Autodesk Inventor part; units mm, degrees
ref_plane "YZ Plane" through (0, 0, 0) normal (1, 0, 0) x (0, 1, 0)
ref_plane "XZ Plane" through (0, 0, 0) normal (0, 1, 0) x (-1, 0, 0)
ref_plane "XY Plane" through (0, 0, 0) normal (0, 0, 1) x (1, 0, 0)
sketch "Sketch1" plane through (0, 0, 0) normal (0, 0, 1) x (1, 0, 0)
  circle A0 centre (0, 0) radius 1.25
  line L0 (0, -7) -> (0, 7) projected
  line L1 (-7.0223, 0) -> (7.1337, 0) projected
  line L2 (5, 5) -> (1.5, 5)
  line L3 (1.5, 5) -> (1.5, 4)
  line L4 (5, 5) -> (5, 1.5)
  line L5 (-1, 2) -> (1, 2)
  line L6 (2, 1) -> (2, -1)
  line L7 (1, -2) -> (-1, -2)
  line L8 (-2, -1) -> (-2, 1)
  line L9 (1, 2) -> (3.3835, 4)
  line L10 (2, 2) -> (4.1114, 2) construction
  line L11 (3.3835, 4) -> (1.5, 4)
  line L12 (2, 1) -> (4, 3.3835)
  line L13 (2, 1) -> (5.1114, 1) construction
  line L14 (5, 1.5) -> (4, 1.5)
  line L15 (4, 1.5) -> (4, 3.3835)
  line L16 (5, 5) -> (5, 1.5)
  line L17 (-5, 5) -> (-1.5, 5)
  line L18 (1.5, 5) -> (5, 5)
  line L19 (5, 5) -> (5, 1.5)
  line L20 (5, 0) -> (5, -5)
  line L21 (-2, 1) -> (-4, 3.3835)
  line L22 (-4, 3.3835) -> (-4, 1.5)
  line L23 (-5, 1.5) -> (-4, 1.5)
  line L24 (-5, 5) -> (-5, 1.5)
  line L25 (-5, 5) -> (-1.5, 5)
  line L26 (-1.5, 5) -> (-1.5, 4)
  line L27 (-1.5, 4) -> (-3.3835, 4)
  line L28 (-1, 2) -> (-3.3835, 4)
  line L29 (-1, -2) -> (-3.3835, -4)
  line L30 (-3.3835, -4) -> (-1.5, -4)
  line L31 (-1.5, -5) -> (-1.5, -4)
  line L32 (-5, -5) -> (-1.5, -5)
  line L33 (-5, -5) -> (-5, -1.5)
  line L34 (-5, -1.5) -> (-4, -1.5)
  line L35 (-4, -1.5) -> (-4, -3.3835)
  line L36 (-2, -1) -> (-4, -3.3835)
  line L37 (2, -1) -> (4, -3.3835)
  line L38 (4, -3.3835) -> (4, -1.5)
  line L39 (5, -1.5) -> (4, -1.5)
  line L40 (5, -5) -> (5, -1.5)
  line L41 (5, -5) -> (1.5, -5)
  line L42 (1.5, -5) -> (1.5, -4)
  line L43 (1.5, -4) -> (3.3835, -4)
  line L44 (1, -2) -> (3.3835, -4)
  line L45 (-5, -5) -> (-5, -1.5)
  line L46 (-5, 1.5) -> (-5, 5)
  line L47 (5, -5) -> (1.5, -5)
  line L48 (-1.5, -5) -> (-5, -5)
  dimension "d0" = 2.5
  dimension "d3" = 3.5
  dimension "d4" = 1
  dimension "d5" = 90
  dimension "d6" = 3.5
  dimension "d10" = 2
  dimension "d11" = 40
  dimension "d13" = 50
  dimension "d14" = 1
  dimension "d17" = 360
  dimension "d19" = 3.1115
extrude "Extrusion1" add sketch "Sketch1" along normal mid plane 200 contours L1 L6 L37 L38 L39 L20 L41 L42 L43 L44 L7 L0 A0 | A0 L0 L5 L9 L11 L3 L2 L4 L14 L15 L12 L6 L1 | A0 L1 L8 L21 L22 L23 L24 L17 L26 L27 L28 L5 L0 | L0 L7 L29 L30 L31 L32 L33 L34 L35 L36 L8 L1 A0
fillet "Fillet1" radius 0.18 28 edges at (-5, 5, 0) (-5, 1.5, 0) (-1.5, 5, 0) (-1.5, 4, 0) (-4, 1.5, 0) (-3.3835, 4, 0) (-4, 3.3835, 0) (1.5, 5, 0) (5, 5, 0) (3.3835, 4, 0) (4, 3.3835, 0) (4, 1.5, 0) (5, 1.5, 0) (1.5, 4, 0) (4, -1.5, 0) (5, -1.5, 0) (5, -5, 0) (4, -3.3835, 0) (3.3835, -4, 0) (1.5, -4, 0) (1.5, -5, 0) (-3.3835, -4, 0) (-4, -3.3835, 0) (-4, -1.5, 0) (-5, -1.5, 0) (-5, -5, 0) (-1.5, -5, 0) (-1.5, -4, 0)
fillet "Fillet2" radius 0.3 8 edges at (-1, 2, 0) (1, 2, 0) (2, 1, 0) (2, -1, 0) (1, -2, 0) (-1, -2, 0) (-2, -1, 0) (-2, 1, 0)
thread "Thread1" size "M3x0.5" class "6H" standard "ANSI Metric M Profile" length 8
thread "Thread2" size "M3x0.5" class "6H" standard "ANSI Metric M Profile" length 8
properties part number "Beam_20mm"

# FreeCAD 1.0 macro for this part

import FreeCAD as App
import Part
import Sketcher
Q = App.Units.Quantity


def edges_at(feature, points):
    """Names of the edges that pass closest to the given points."""
    edges = feature.Shape.Edges
    near = lambda p: min(range(len(edges)), key=lambda i: edges[i].distToShape(Part.Vertex(*p))[0])
    return sorted({f"Edge{near(p) + 1}" for p in points})

doc = App.newDocument("Part")
body = doc.addObject("PartDesign::Body", "Body")

sketch1 = body.newObject("Sketcher::SketchObject", "Sketch")
sketch1.AttachmentSupport = (doc.getObject("XY_Plane"), [""])
sketch1.MapMode = "FlatFace"
sketch1.addGeometry([
    Part.LineSegment(App.Vector(2, -1, 0), App.Vector(2, 1, 0)),
    Part.LineSegment(App.Vector(2, 1, 0), App.Vector(4, 3.3835, 0)),
    Part.LineSegment(App.Vector(4, 3.3835, 0), App.Vector(4, 1.5, 0)),
    Part.LineSegment(App.Vector(4, 1.5, 0), App.Vector(5, 1.5, 0)),
    Part.LineSegment(App.Vector(5, 1.5, 0), App.Vector(5, 5, 0)),
    Part.LineSegment(App.Vector(5, 5, 0), App.Vector(1.5, 5, 0)),
    Part.LineSegment(App.Vector(1.5, 5, 0), App.Vector(1.5, 4, 0)),
    Part.LineSegment(App.Vector(1.5, 4, 0), App.Vector(3.3835, 4, 0)),
    Part.LineSegment(App.Vector(3.3835, 4, 0), App.Vector(1, 2, 0)),
    Part.LineSegment(App.Vector(1, 2, 0), App.Vector(-1, 2, 0)),
    Part.LineSegment(App.Vector(-1, 2, 0), App.Vector(-3.3835, 4, 0)),
    Part.LineSegment(App.Vector(-3.3835, 4, 0), App.Vector(-1.5, 4, 0)),
    Part.LineSegment(App.Vector(-1.5, 4, 0), App.Vector(-1.5, 5, 0)),
    Part.LineSegment(App.Vector(-1.5, 5, 0), App.Vector(-5, 5, 0)),
    Part.LineSegment(App.Vector(-5, 5, 0), App.Vector(-5, 1.5, 0)),
    Part.LineSegment(App.Vector(-5, 1.5, 0), App.Vector(-4, 1.5, 0)),
    Part.LineSegment(App.Vector(-4, 1.5, 0), App.Vector(-4, 3.3835, 0)),
    Part.LineSegment(App.Vector(-4, 3.3835, 0), App.Vector(-2, 1, 0)),
    Part.LineSegment(App.Vector(-2, 1, 0), App.Vector(-2, -1, 0)),
    Part.LineSegment(App.Vector(-2, -1, 0), App.Vector(-4, -3.3835, 0)),
    Part.LineSegment(App.Vector(-4, -3.3835, 0), App.Vector(-4, -1.5, 0)),
    Part.LineSegment(App.Vector(-4, -1.5, 0), App.Vector(-5, -1.5, 0)),
    Part.LineSegment(App.Vector(-5, -1.5, 0), App.Vector(-5, -5, 0)),
    Part.LineSegment(App.Vector(-5, -5, 0), App.Vector(-1.5, -5, 0)),
    Part.LineSegment(App.Vector(-1.5, -5, 0), App.Vector(-1.5, -4, 0)),
    Part.LineSegment(App.Vector(-1.5, -4, 0), App.Vector(-3.3835, -4, 0)),
    Part.LineSegment(App.Vector(-3.3835, -4, 0), App.Vector(-1, -2, 0)),
    Part.LineSegment(App.Vector(-1, -2, 0), App.Vector(1, -2, 0)),
    Part.LineSegment(App.Vector(1, -2, 0), App.Vector(3.3835, -4, 0)),
    Part.LineSegment(App.Vector(3.3835, -4, 0), App.Vector(1.5, -4, 0)),
    Part.LineSegment(App.Vector(1.5, -4, 0), App.Vector(1.5, -5, 0)),
    Part.LineSegment(App.Vector(1.5, -5, 0), App.Vector(5, -5, 0)),
    Part.LineSegment(App.Vector(5, -5, 0), App.Vector(5, -1.5, 0)),
    Part.LineSegment(App.Vector(5, -1.5, 0), App.Vector(4, -1.5, 0)),
    Part.LineSegment(App.Vector(4, -1.5, 0), App.Vector(4, -3.3835, 0)),
    Part.LineSegment(App.Vector(4, -3.3835, 0), App.Vector(2, -1, 0)),
    Part.Circle(App.Vector(0, 0, 0), App.Vector(0, 0, 1), 1.25),
], False)
sketch1.addConstraint([
    Sketcher.Constraint("Coincident", 0, 2, 1, 1),
    Sketcher.Constraint("Coincident", 1, 2, 2, 1),
    Sketcher.Constraint("Coincident", 2, 2, 3, 1),
    Sketcher.Constraint("Coincident", 3, 2, 4, 1),
    Sketcher.Constraint("Coincident", 4, 2, 5, 1),
    Sketcher.Constraint("Coincident", 5, 2, 6, 1),
    Sketcher.Constraint("Coincident", 6, 2, 7, 1),
    Sketcher.Constraint("Coincident", 7, 2, 8, 1),
    Sketcher.Constraint("Coincident", 8, 2, 9, 1),
    Sketcher.Constraint("Coincident", 9, 2, 10, 1),
    Sketcher.Constraint("Coincident", 10, 2, 11, 1),
    Sketcher.Constraint("Coincident", 11, 2, 12, 1),
    Sketcher.Constraint("Coincident", 12, 2, 13, 1),
    Sketcher.Constraint("Coincident", 13, 2, 14, 1),
    Sketcher.Constraint("Coincident", 14, 2, 15, 1),
    Sketcher.Constraint("Coincident", 15, 2, 16, 1),
    Sketcher.Constraint("Coincident", 16, 2, 17, 1),
    Sketcher.Constraint("Coincident", 17, 2, 18, 1),
    Sketcher.Constraint("Coincident", 18, 2, 19, 1),
    Sketcher.Constraint("Coincident", 19, 2, 20, 1),
    Sketcher.Constraint("Coincident", 20, 2, 21, 1),
    Sketcher.Constraint("Coincident", 21, 2, 22, 1),
    Sketcher.Constraint("Coincident", 22, 2, 23, 1),
    Sketcher.Constraint("Coincident", 23, 2, 24, 1),
    Sketcher.Constraint("Coincident", 24, 2, 25, 1),
    Sketcher.Constraint("Coincident", 25, 2, 26, 1),
    Sketcher.Constraint("Coincident", 26, 2, 27, 1),
    Sketcher.Constraint("Coincident", 27, 2, 28, 1),
    Sketcher.Constraint("Coincident", 28, 2, 29, 1),
    Sketcher.Constraint("Coincident", 29, 2, 30, 1),
    Sketcher.Constraint("Coincident", 30, 2, 31, 1),
    Sketcher.Constraint("Coincident", 31, 2, 32, 1),
    Sketcher.Constraint("Coincident", 32, 2, 33, 1),
    Sketcher.Constraint("Coincident", 33, 2, 34, 1),
    Sketcher.Constraint("Coincident", 34, 2, 35, 1),
    Sketcher.Constraint("Coincident", 35, 2, 0, 1),
    Sketcher.Constraint("Vertical", 0),
    Sketcher.Constraint("Vertical", 2),
    Sketcher.Constraint("Horizontal", 3),
    Sketcher.Constraint("Vertical", 4),
    Sketcher.Constraint("Horizontal", 5),
    Sketcher.Constraint("Vertical", 6),
    Sketcher.Constraint("Horizontal", 7),
    Sketcher.Constraint("Horizontal", 9),
    Sketcher.Constraint("Horizontal", 11),
    Sketcher.Constraint("Vertical", 12),
    Sketcher.Constraint("Horizontal", 13),
    Sketcher.Constraint("Vertical", 14),
    Sketcher.Constraint("Horizontal", 15),
    Sketcher.Constraint("Vertical", 16),
    Sketcher.Constraint("Vertical", 18),
    Sketcher.Constraint("Vertical", 20),
    Sketcher.Constraint("Horizontal", 21),
    Sketcher.Constraint("Vertical", 22),
    Sketcher.Constraint("Horizontal", 23),
    Sketcher.Constraint("Vertical", 24),
    Sketcher.Constraint("Horizontal", 25),
    Sketcher.Constraint("Horizontal", 27),
    Sketcher.Constraint("Horizontal", 29),
    Sketcher.Constraint("Vertical", 30),
    Sketcher.Constraint("Horizontal", 31),
    Sketcher.Constraint("Vertical", 32),
    Sketcher.Constraint("Horizontal", 33),
    Sketcher.Constraint("Vertical", 34),
    Sketcher.Constraint("Coincident", 36, 3, -1, 1),
    Sketcher.Constraint("Symmetric", 0, 2, 18, 2, -1, 1),
    Sketcher.Constraint("Symmetric", 1, 2, 19, 2, -1, 1),
    Sketcher.Constraint("Symmetric", 3, 2, 21, 2, -1, 1),
    Sketcher.Constraint("Symmetric", 5, 2, 23, 2, -1, 1),
    Sketcher.Constraint("Symmetric", 7, 2, 25, 2, -1, 1),
    Sketcher.Constraint("Symmetric", 8, 2, 26, 2, -1, 1),
    Sketcher.Constraint("Symmetric", 10, 2, 28, 2, -1, 1),
    Sketcher.Constraint("Symmetric", 12, 2, 30, 2, -1, 1),
    Sketcher.Constraint("Symmetric", 14, 2, 32, 2, -1, 1),
    Sketcher.Constraint("Symmetric", 16, 2, 34, 2, -1, 1),
    Sketcher.Constraint("Symmetric", 7, 2, 10, 2, -2),
    Sketcher.Constraint("Symmetric", 5, 2, 12, 2, -2),
    Sketcher.Constraint("Symmetric", 3, 2, 14, 2, -2),
    Sketcher.Constraint("Symmetric", 1, 2, 16, 2, -2),
    Sketcher.Constraint("Perpendicular", 1, 10),
    Sketcher.Constraint("Perpendicular", 8, 17),
    Sketcher.Constraint("Perpendicular", 19, 28),
    Sketcher.Constraint("Perpendicular", 26, 35),
    Sketcher.Constraint("Horizontal", 0, 2, 17, 2),
    Sketcher.Constraint("Equal", 27, 0),
    Sketcher.Constraint("Equal", 29, 2),
    Sketcher.Constraint("Equal", 31, 4),
    Sketcher.Constraint("Equal", 33, 6),
    Sketcher.Constraint("Equal", 1, 8),
    Sketcher.Constraint("Diameter", 36, Q("2.5 mm")),
    Sketcher.Constraint("DistanceX", 3, 1, 3, 2, Q("1 mm")),
    Sketcher.Constraint("DistanceX", 9, 2, 9, 1, Q("2 mm")),
    Sketcher.Constraint("Angle", 1, Q("50 deg")),
    Sketcher.Constraint("DistanceX", 5, 2, 5, 1, Q("3.5 mm")),
    Sketcher.Constraint("DistanceX", -1, 1, 0, 2, Q("2 mm")),
    Sketcher.Constraint("DistanceX", 0, 2, 1, 2, Q("2 mm")),
])
pad1 = body.newObject("PartDesign::Pad", "Pad")
pad1.Profile = sketch1
pad1.Length = 200
pad1.Midplane = True
doc.recompute()

fillet = body.newObject("PartDesign::Fillet", "Fillet")
fillet.Base = (pad1, edges_at(pad1, [
    (-5, 5, 0),
    (-5, 1.5, 0),
    (-1.5, 5, 0),
    (-1.5, 4, 0),
    (-4, 1.5, 0),
    (-3.384, 4, 0),
    (-4, 3.384, 0),
    (1.5, 5, 0),
    (5, 5, 0),
    (3.384, 4, 0),
    (4, 3.384, 0),
    (4, 1.5, 0),
    (5, 1.5, 0),
    (1.5, 4, 0),
    (4, -1.5, 0),
    (5, -1.5, 0),
    (5, -5, 0),
    (4, -3.384, 0),
    (3.384, -4, 0),
    (1.5, -4, 0),
    (1.5, -5, 0),
    (-3.384, -4, 0),
    (-4, -3.384, 0),
    (-4, -1.5, 0),
    (-5, -1.5, 0),
    (-5, -5, 0),
    (-1.5, -5, 0),
    (-1.5, -4, 0),
]))
fillet.Radius = 0.18
doc.recompute()

fillet2 = body.newObject("PartDesign::Fillet", "Fillet001")
fillet2.Base = (fillet, edges_at(fillet, [
    (-1, 2, 0),
    (1, 2, 0),
    (2, 1, 0),
    (2, -1, 0),
    (1, -2, 0),
    (-1, -2, 0),
    (-2, -1, 0),
    (-2, 1, 0),
]))
fillet2.Radius = 0.3

doc.recompute()
